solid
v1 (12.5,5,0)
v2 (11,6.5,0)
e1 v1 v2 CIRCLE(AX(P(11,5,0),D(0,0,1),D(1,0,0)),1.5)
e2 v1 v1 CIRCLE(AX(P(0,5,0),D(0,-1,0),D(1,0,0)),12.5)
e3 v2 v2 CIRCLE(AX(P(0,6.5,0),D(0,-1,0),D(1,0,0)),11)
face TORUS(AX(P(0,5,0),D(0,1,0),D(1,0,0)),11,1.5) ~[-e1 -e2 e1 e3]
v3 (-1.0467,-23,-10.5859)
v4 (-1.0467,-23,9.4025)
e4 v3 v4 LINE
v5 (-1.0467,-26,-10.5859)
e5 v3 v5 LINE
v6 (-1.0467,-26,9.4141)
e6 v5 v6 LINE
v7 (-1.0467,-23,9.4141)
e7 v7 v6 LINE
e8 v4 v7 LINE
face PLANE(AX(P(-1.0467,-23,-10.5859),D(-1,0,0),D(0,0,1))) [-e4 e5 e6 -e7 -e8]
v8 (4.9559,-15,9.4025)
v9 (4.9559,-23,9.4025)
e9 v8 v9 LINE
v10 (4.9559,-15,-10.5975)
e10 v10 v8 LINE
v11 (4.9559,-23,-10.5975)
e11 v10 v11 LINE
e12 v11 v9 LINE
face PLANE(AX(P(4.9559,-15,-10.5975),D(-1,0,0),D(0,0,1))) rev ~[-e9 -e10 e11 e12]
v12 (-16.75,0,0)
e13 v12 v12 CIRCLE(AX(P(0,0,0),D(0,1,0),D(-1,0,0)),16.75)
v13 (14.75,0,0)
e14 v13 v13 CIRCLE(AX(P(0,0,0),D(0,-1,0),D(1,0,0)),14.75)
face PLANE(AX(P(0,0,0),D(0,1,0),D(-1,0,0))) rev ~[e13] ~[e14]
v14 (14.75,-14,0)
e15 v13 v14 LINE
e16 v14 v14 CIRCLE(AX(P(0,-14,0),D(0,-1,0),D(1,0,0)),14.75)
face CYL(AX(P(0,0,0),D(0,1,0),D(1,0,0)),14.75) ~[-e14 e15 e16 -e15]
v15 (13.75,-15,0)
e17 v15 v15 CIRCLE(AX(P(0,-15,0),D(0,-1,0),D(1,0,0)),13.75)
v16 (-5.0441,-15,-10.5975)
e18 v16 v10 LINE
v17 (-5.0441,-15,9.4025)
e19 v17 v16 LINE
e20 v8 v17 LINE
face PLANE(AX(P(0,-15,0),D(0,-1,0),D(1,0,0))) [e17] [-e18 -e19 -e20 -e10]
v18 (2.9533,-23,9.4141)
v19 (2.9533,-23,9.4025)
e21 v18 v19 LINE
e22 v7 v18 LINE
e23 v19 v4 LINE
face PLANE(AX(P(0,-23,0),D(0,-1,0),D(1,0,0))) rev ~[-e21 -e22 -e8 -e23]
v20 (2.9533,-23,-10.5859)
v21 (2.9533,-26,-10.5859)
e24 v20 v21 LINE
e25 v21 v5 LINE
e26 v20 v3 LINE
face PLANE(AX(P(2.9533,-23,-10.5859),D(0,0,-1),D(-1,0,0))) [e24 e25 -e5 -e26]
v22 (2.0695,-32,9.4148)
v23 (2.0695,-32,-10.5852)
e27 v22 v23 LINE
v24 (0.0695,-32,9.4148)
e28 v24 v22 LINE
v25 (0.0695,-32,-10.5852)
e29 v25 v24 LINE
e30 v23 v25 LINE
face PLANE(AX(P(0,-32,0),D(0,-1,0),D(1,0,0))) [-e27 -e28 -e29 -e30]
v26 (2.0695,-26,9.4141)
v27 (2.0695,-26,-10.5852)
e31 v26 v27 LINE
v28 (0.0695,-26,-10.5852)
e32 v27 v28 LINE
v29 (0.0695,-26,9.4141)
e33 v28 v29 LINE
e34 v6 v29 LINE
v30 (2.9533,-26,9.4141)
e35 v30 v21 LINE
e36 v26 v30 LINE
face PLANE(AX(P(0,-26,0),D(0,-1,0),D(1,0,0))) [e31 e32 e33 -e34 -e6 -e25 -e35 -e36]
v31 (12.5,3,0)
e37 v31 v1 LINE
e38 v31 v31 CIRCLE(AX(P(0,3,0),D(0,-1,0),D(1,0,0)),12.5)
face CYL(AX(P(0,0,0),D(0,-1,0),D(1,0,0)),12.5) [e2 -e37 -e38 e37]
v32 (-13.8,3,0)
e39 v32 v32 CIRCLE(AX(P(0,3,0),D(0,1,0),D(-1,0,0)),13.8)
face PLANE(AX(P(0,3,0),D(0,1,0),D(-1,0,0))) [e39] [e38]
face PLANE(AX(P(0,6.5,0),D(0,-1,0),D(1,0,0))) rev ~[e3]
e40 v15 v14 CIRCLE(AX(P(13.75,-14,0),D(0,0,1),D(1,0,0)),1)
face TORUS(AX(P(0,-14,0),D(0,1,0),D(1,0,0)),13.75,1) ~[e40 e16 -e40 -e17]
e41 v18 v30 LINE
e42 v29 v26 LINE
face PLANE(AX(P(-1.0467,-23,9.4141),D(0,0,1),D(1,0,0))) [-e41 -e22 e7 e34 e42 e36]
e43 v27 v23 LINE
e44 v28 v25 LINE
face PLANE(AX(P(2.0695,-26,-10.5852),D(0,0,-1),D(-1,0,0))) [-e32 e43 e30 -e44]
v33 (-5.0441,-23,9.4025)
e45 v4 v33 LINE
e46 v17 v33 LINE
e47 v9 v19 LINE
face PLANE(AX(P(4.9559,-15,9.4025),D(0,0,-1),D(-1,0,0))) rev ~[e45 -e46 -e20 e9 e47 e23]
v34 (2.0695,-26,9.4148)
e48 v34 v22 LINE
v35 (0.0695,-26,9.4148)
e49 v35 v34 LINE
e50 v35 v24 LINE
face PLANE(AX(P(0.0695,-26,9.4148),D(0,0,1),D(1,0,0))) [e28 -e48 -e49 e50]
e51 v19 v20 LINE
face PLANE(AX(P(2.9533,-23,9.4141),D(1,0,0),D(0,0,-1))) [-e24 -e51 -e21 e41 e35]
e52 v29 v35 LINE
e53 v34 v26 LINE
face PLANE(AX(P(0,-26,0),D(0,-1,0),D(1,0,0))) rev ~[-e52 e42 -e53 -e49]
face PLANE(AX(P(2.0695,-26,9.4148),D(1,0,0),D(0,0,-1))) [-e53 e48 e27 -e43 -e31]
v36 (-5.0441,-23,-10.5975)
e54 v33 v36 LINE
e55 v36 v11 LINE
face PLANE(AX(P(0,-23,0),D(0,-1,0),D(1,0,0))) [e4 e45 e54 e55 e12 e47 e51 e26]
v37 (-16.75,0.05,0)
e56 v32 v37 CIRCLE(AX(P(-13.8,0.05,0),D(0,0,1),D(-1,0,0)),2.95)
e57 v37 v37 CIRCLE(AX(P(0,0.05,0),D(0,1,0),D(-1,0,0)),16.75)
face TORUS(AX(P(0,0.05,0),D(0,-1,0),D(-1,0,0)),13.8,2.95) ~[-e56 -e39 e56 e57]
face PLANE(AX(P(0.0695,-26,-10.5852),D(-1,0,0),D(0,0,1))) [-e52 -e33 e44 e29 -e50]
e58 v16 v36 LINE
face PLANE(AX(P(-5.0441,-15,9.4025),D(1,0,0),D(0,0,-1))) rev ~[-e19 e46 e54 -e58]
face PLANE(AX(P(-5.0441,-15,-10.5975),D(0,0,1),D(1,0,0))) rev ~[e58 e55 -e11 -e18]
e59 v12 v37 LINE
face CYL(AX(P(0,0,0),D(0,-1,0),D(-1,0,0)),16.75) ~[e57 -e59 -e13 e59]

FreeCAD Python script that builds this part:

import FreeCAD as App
import Part
import Sketcher
Q = App.Units.Quantity


def edges_at(feature, points):
    """Names of the edges that pass closest to the given points."""
    edges = feature.Shape.Edges
    near = lambda p: min(range(len(edges)), key=lambda i: edges[i].distToShape(Part.Vertex(*p))[0])
    return sorted({f"Edge{near(p) + 1}" for p in points})

doc = App.newDocument("Part")
params = doc.addObject("Spreadsheet::Sheet", "Params")
for row, (alias, value) in enumerate([
    ("sketch1_diameter", "25 mm"),
    ("sketch1_diameter2", "33.5 mm"),
    ("pad1_length", "3 mm"),
    ("sketch2_diameter", "25 mm"),
    ("pad2_length", "6.5 mm"),
    ("fillet_radius", "1.5 mm"),
    ("fillet2_radius", "2.95 mm"),
    ("sketch3_diameter", "29.5 mm"),
    ("pad3_length", "15 mm"),
    ("sketch4_width", "10 mm"),
    ("sketch4_height", "20 mm"),
    ("pad4_length", "8 mm"),
    ("sketch5_width", "4 mm"),
    ("sketch5_height", "20 mm"),
    ("pad5_length", "3 mm"),
    ("sketch6_width", "2 mm"),
    ("sketch6_height", "20 mm"),
    ("pad6_length", "6 mm"),
    ("fillet3_radius", "1 mm"),
], start=1):
    params.set(f"A{row}", alias)
    params.set(f"B{row}", "=" + value)
    params.setAlias(f"B{row}", alias)

body = doc.addObject("PartDesign::Body", "Body")

# Sketch on XZ plane
sketch1 = body.newObject("Sketcher::SketchObject", "Sketch")
sketch1.AttachmentSupport = (doc.getObject("XZ_Plane"), [""])
sketch1.MapMode = "FlatFace"
sketch1.addGeometry([
    Part.Circle(App.Vector(0, 0, 0), App.Vector(0, 0, 1), 17),
    Part.Circle(App.Vector(0, 0, 0), App.Vector(0, 0, 1), 12),
], False)
sketch1.addConstraint([
    Sketcher.Constraint("Coincident", 0, 3, -1, 1),
    Sketcher.Constraint("Coincident", 1, 3, -1, 1),
    Sketcher.Constraint("Diameter", 1, Q("25 mm")),
    Sketcher.Constraint("Diameter", 0, Q("33.5 mm")),
])
sketch1.setExpression("Constraints[2]", "Params.sketch1_diameter")
sketch1.setExpression("Constraints[3]", "Params.sketch1_diameter2")
pad1 = body.newObject("PartDesign::Pad", "Pad")
pad1.Profile = sketch1
pad1.setExpression("Length", "Params.pad1_length")
pad1.Reversed = True

# Sketch on XZ plane
sketch2 = body.newObject("Sketcher::SketchObject", "Sketch001")
sketch2.AttachmentSupport = (doc.getObject("XZ_Plane"), [""])
sketch2.MapMode = "FlatFace"
sketch2.addGeometry(Part.Circle(App.Vector(0, 0, 0), App.Vector(0, 0, 1), 12), False)
sketch2.addConstraint([
    Sketcher.Constraint("Coincident", 0, 3, -1, 1),
    Sketcher.Constraint("Diameter", 0, Q("25 mm")),
])
sketch2.setExpression("Constraints[1]", "Params.sketch2_diameter")
pad2 = body.newObject("PartDesign::Pad", "Pad001")
pad2.Profile = sketch2
pad2.setExpression("Length", "Params.pad2_length")
pad2.Reversed = True
doc.recompute()

fillet = body.newObject("PartDesign::Fillet", "Fillet")
fillet.Base = (pad2, edges_at(pad2, [(-12.5, 6.5, 0)]))
fillet.setExpression("Radius", "Params.fillet_radius")
doc.recompute()

fillet2 = body.newObject("PartDesign::Fillet", "Fillet001")
fillet2.Base = (fillet, edges_at(fillet, [(16.75, 3, 0)]))
fillet2.setExpression("Radius", "Params.fillet2_radius")

# Sketch on XZ plane
sketch3 = body.newObject("Sketcher::SketchObject", "Sketch002")
sketch3.AttachmentSupport = (doc.getObject("XZ_Plane"), [""])
sketch3.MapMode = "FlatFace"
sketch3.addGeometry(Part.Circle(App.Vector(0, 0, 0), App.Vector(0, 0, 1), 15), False)
sketch3.addConstraint([
    Sketcher.Constraint("Coincident", 0, 3, -1, 1),
    Sketcher.Constraint("Diameter", 0, Q("29.5 mm")),
])
sketch3.setExpression("Constraints[1]", "Params.sketch3_diameter")
pad3 = body.newObject("PartDesign::Pad", "Pad002")
pad3.Profile = sketch3
pad3.setExpression("Length", "Params.pad3_length")

# Sketch on XZ plane
sketch4 = body.newObject("Sketcher::SketchObject", "Sketch003")
sketch4.AttachmentSupport = (doc.getObject("XZ_Plane"), [""])
sketch4.MapMode = "FlatFace"
sketch4.AttachmentOffset = App.Placement(App.Vector(0, 0, 15), App.Rotation())
sketch4.addGeometry([
    Part.LineSegment(App.Vector(5, -11, 0), App.Vector(5, 9, 0)),
    Part.LineSegment(App.Vector(5, 9, 0), App.Vector(-5, 9, 0)),
    Part.LineSegment(App.Vector(-5, 9, 0), App.Vector(-5, -11, 0)),
    Part.LineSegment(App.Vector(-5, -11, 0), App.Vector(5, -11, 0)),
], False)
sketch4.addConstraint([
    Sketcher.Constraint("Coincident", 0, 2, 1, 1),
    Sketcher.Constraint("Coincident", 1, 2, 2, 1),
    Sketcher.Constraint("Coincident", 2, 2, 3, 1),
    Sketcher.Constraint("Coincident", 3, 2, 0, 1),
    Sketcher.Constraint("Vertical", 0),
    Sketcher.Constraint("Horizontal", 1),
    Sketcher.Constraint("Vertical", 2),
    Sketcher.Constraint("Horizontal", 3),
    Sketcher.Constraint("DistanceX", 1, 2, 1, 1, Q("10 mm")),
    Sketcher.Constraint("DistanceY", 0, 1, 0, 2, Q("20 mm")),
    Sketcher.Constraint("DistanceX", -1, 1, 0, 2, Q("4.956 mm")),
    Sketcher.Constraint("DistanceY", -1, 1, 0, 2, Q("9.4025 mm")),
])
sketch4.setExpression("Constraints[8]", "Params.sketch4_width")
sketch4.setExpression("Constraints[9]", "Params.sketch4_height")
pad4 = body.newObject("PartDesign::Pad", "Pad003")
pad4.Profile = sketch4
pad4.setExpression("Length", "Params.pad4_length")

# Sketch on XZ plane
sketch5 = body.newObject("Sketcher::SketchObject", "Sketch004")
sketch5.AttachmentSupport = (doc.getObject("XZ_Plane"), [""])
sketch5.MapMode = "FlatFace"
sketch5.AttachmentOffset = App.Placement(App.Vector(0, 0, 23), App.Rotation())
sketch5.addGeometry([
    Part.LineSegment(App.Vector(3, 9.4, 0), App.Vector(-1, 9.4, 0)),
    Part.LineSegment(App.Vector(-1, 9.4, 0), App.Vector(-1, -10.6, 0)),
    Part.LineSegment(App.Vector(-1, -10.6, 0), App.Vector(3, -10.6, 0)),
    Part.LineSegment(App.Vector(3, -10.6, 0), App.Vector(3, 9.4, 0)),
], False)
sketch5.addConstraint([
    Sketcher.Constraint("Coincident", 0, 2, 1, 1),
    Sketcher.Constraint("Coincident", 1, 2, 2, 1),
    Sketcher.Constraint("Coincident", 2, 2, 3, 1),
    Sketcher.Constraint("Coincident", 3, 2, 0, 1),
    Sketcher.Constraint("Horizontal", 0),
    Sketcher.Constraint("Vertical", 1),
    Sketcher.Constraint("Horizontal", 2),
    Sketcher.Constraint("Vertical", 3),
    Sketcher.Constraint("DistanceX", 0, 2, 0, 1, Q("4 mm")),
    Sketcher.Constraint("DistanceY", 1, 2, 1, 1, Q("20 mm")),
    Sketcher.Constraint("DistanceY", -1, 1, 0, 2, Q("9.414 mm")),
    Sketcher.Constraint("DistanceX", 0, 2, -1, 1, Q("1.0467 mm")),
])
sketch5.setExpression("Constraints[8]", "Params.sketch5_width")
sketch5.setExpression("Constraints[9]", "Params.sketch5_height")
pad5 = body.newObject("PartDesign::Pad", "Pad004")
pad5.Profile = sketch5
pad5.setExpression("Length", "Params.pad5_length")

# Sketch on XZ plane
sketch6 = body.newObject("Sketcher::SketchObject", "Sketch005")
sketch6.AttachmentSupport = (doc.getObject("XZ_Plane"), [""])
sketch6.MapMode = "FlatFace"
sketch6.AttachmentOffset = App.Placement(App.Vector(0, 0, 26), App.Rotation())
sketch6.addGeometry([
    Part.LineSegment(App.Vector(2.1, 9.4, 0), App.Vector(0.1, 9.4, 0)),
    Part.LineSegment(App.Vector(0.1, 9.4, 0), App.Vector(0.1, -10.6, 0)),
    Part.LineSegment(App.Vector(0.1, -10.6, 0), App.Vector(2.1, -10.6, 0)),
    Part.LineSegment(App.Vector(2.1, -10.6, 0), App.Vector(2.1, 9.4, 0)),
], False)
sketch6.addConstraint([
    Sketcher.Constraint("Coincident", 0, 2, 1, 1),
    Sketcher.Constraint("Coincident", 1, 2, 2, 1),
    Sketcher.Constraint("Coincident", 2, 2, 3, 1),
    Sketcher.Constraint("Coincident", 3, 2, 0, 1),
    Sketcher.Constraint("Horizontal", 0),
    Sketcher.Constraint("Vertical", 1),
    Sketcher.Constraint("Horizontal", 2),
    Sketcher.Constraint("Vertical", 3),
    Sketcher.Constraint("DistanceX", 0, 2, 0, 1, Q("2 mm")),
    Sketcher.Constraint("DistanceY", 1, 2, 1, 1, Q("20 mm")),
    Sketcher.Constraint("DistanceX", -1, 1, 0, 2, Q("0.0695 mm")),
    Sketcher.Constraint("DistanceY", -1, 1, 0, 2, Q("9.4148 mm")),
])
sketch6.setExpression("Constraints[8]", "Params.sketch6_width")
sketch6.setExpression("Constraints[9]", "Params.sketch6_height")
pad6 = body.newObject("PartDesign::Pad", "Pad005")
pad6.Profile = sketch6
pad6.setExpression("Length", "Params.pad6_length")
doc.recompute()

fillet3 = body.newObject("PartDesign::Fillet", "Fillet002")
fillet3.Base = (pad6, edges_at(pad6, [(-14.75, -15, 0)]))
fillet3.setExpression("Radius", "Params.fillet3_radius")

doc.recompute()
